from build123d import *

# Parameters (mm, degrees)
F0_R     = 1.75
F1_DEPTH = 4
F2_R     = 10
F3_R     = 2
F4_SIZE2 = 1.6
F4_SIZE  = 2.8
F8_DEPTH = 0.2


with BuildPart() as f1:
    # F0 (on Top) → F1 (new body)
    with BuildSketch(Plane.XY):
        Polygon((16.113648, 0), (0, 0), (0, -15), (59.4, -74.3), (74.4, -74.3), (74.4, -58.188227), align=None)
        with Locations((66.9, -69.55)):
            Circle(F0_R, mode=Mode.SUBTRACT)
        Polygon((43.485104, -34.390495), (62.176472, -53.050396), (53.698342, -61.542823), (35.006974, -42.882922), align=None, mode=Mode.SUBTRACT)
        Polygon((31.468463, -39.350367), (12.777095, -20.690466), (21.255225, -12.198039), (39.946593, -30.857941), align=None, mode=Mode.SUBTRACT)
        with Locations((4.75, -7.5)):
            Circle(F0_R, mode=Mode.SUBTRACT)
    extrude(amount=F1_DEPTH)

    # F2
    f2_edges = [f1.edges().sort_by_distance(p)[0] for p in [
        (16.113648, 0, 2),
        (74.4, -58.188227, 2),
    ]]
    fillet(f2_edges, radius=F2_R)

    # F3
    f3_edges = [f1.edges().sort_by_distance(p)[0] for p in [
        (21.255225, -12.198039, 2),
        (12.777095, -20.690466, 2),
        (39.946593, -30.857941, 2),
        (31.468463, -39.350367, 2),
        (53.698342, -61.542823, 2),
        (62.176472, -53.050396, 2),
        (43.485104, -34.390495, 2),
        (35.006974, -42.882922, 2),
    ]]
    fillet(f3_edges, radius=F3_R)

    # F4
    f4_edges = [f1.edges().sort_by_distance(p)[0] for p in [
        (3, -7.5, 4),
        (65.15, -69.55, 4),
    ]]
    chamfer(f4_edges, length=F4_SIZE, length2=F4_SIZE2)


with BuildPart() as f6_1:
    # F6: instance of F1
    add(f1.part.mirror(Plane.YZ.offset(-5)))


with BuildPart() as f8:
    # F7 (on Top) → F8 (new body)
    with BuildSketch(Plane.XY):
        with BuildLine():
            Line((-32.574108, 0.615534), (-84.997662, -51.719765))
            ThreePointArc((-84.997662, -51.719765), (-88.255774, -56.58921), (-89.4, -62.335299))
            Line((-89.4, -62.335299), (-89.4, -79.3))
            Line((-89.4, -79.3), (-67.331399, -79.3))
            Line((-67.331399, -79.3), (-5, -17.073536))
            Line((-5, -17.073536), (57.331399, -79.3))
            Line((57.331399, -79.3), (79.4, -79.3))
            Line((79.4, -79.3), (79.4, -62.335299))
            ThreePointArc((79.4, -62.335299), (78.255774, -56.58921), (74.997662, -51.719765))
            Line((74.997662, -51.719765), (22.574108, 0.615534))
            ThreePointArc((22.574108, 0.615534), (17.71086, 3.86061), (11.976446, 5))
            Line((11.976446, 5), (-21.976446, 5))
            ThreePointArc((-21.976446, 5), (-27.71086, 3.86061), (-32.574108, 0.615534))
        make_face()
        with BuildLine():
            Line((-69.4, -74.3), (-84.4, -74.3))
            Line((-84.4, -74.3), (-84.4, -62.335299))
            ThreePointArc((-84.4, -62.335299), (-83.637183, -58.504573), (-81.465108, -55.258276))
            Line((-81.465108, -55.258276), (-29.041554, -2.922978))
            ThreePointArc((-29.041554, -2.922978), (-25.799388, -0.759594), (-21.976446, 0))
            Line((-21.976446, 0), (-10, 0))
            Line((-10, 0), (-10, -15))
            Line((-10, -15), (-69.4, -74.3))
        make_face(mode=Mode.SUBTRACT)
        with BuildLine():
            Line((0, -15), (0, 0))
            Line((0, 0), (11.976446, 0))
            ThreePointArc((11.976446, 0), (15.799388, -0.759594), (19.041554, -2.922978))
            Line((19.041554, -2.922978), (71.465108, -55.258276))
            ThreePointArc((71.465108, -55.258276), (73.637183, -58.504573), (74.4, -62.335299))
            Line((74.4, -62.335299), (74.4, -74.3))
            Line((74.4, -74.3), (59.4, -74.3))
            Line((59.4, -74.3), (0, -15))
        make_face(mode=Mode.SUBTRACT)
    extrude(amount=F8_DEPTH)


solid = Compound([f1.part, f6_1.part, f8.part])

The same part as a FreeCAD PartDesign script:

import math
import FreeCAD as App
import Part
import Sketcher
from FreeCAD import Vector
Q = App.Units.Quantity


def edges_at(feature, points):
    """Names of the edges that pass closest to the given points."""
    edges = feature.Shape.Edges
    near = lambda p: min(range(len(edges)), key=lambda i: edges[i].distToShape(Part.Vertex(*p))[0])
    return sorted({f"Edge{near(p) + 1}" for p in points})

doc = App.newDocument("Part")
body = doc.addObject("PartDesign::Body", "Body")

# Sketch on XY plane
sketch1 = doc.addObject("Sketcher::SketchObject", "Sketch")
body.addObject(sketch1)
sketch1.AttachmentSupport = (doc.XY_Plane, [""])
sketch1.MapMode = "FlatFace"
sketch1.addGeometry([
    Part.LineSegment(Vector(16.1, 0, 0), Vector(0, 0, 0)),  # 0
    Part.LineSegment(Vector(0, 0, 0), Vector(0, -15, 0)),  # 1
    Part.LineSegment(Vector(0, -15, 0), Vector(59.4, -74.3, 0)),  # 2
    Part.LineSegment(Vector(59.4, -74.3, 0), Vector(74.4, -74.3, 0)),  # 3
    Part.LineSegment(Vector(74.4, -74.3, 0), Vector(74.4, -58.2, 0)),  # 4
    Part.LineSegment(Vector(74.4, -58.2, 0), Vector(16.1, 0, 0)),  # 5
    Part.Circle(Vector(66.9, -69.5, 0), Vector(0, 0, 1), 1.8),  # 6
    Part.LineSegment(Vector(35, -42.9, 0), Vector(43.5, -34.4, 0)),  # 7
    Part.LineSegment(Vector(43.5, -34.4, 0), Vector(62.2, -53.1, 0)),  # 8
    Part.LineSegment(Vector(62.2, -53.1, 0), Vector(53.7, -61.5, 0)),  # 9
    Part.LineSegment(Vector(53.7, -61.5, 0), Vector(35, -42.9, 0)),  # 10
    Part.LineSegment(Vector(39.9, -30.9, 0), Vector(31.5, -39.4, 0)),  # 11
    Part.LineSegment(Vector(31.5, -39.4, 0), Vector(12.8, -20.7, 0)),  # 12
    Part.LineSegment(Vector(12.8, -20.7, 0), Vector(21.3, -12.2, 0)),  # 13
    Part.LineSegment(Vector(21.3, -12.2, 0), Vector(39.9, -30.9, 0)),  # 14
    Part.Circle(Vector(4.8, -7.5, 0), Vector(0, 0, 1), 1.8),  # 15
], False)
sketch1.addConstraint([
    Sketcher.Constraint("Coincident", 0, 2, 1, 1),
    Sketcher.Constraint("Coincident", 1, 2, 2, 1),
    Sketcher.Constraint("Coincident", 2, 2, 3, 1),
    Sketcher.Constraint("Coincident", 3, 2, 4, 1),
    Sketcher.Constraint("Coincident", 4, 2, 5, 1),
    Sketcher.Constraint("Coincident", 5, 2, 0, 1),
    Sketcher.Constraint("Coincident", 7, 2, 8, 1),
    Sketcher.Constraint("Coincident", 8, 2, 9, 1),
    Sketcher.Constraint("Coincident", 9, 2, 10, 1),
    Sketcher.Constraint("Coincident", 10, 2, 7, 1),
    Sketcher.Constraint("Coincident", 11, 2, 12, 1),
    Sketcher.Constraint("Coincident", 12, 2, 13, 1),
    Sketcher.Constraint("Coincident", 13, 2, 14, 1),
    Sketcher.Constraint("Coincident", 14, 2, 11, 1),
    Sketcher.Constraint("Horizontal", 0),
    Sketcher.Constraint("Vertical", 1),
    Sketcher.Constraint("Horizontal", 3),
    Sketcher.Constraint("Vertical", 4),
    Sketcher.Constraint("Coincident", 0, 2, -1, 1),
    Sketcher.Constraint("Equal", 6, 15),
    Sketcher.Constraint("Parallel", 2, 5),
    Sketcher.Constraint("Perpendicular", 5, 7),
    Sketcher.Constraint("Perpendicular", 7, 8),
    Sketcher.Constraint("Perpendicular", 8, 9),
    Sketcher.Constraint("Perpendicular", 9, 10),
    Sketcher.Constraint("Perpendicular", 10, 11),
    Sketcher.Constraint("Perpendicular", 11, 12),
    Sketcher.Constraint("Perpendicular", 12, 13),
    Sketcher.Constraint("Perpendicular", 13, 14),
    Sketcher.Constraint("Equal", 3, 1),
    Sketcher.Constraint("Equal", 9, 11),
    Sketcher.Constraint("Equal", 10, 12),
    Sketcher.Constraint("Diameter", 6, Q("3.5 mm")),
    Sketcher.Constraint("DistanceX", 3, 1, 3, 2, Q("15 mm")),
    Sketcher.Constraint("Distance", 7, Q("12 mm")),
    Sketcher.Constraint("DistanceX", -1, 1, 6, 3, Q("66.9 mm")),
    Sketcher.Constraint("DistanceY", 15, 3, -1, 1, Q("7.5 mm")),
    Sketcher.Constraint("DistanceX", -1, 1, 2, 2, Q("59.4 mm")),
    Sketcher.Constraint("DistanceY", 2, 2, -1, 1, Q("74.3 mm")),
    Sketcher.Constraint("DistanceY", 6, 3, -1, 1, Q("69.55 mm")),
    Sketcher.Constraint("DistanceX", -1, 1, 15, 3, Q("4.75 mm")),
    Sketcher.Constraint("DistanceX", 0, 2, 0, 1, Q("16.113648 mm")),
    Sketcher.Constraint("DistanceY", 8, 2, 7, 2, Q("18.659901 mm")),
    Sketcher.Constraint("DistanceX", -1, 1, 8, 2, Q("62.176472 mm")),
    Sketcher.Constraint("DistanceY", 13, 2, -1, 1, Q("12.198039 mm")),
    Sketcher.Constraint("DistanceY", 4, 2, 7, 2, Q("23.797732 mm")),
    Sketcher.Constraint("DistanceX", 11, 2, 10, 2, Q("3.538511 mm")),
])
pad1 = doc.addObject("PartDesign::Pad", "Pad")
body.addObject(pad1)
pad1.Profile = sketch1
pad1.Length = 4
doc.recompute()

fillet = doc.addObject("PartDesign::Fillet", "Fillet")
body.addObject(fillet)
fillet.Base = (pad1, edges_at(pad1, [(16.114, 0, 2), (74.4, -58.188, 2)]))
fillet.Radius = 10
doc.recompute()

fillet2 = doc.addObject("PartDesign::Fillet", "Fillet001")
body.addObject(fillet2)
fillet2.Base = (fillet, edges_at(fillet, [
    (21.255, -12.198, 2),
    (12.777, -20.69, 2),
    (39.947, -30.858, 2),
    (31.468, -39.35, 2),
    (53.698, -61.543, 2),
    (62.176, -53.05, 2),
    (43.485, -34.39, 2),
    (35.007, -42.883, 2),
]))
fillet2.Radius = 2
doc.recompute()

chamfer = doc.addObject("PartDesign::Chamfer", "Chamfer")
body.addObject(chamfer)
chamfer.Base = (fillet2, edges_at(fillet2, [(3, -7.5, 4), (65.15, -69.55, 4)]))
chamfer.ChamferType = "Two distances"
chamfer.Size = 2.8
chamfer.Size2 = 1.6
body2 = doc.addObject("PartDesign::Body", "Body001")
doc.recompute()

mirroring = doc.addObject("Part::Mirroring", "Mirroring")
mirroring.Source = body
mirroring.Base = Vector(-5, 0, 0)
mirroring.Normal = Vector(1, 0, 0)
body2.BaseFeature = mirroring
doc.recompute()
body3 = doc.addObject("PartDesign::Body", "Body002")

# Sketch on XY plane
sketch2 = doc.addObject("Sketcher::SketchObject", "Sketch001")
body3.addObject(sketch2)
sketch2.AttachmentSupport = (doc.getObject("XY_Plane002"), [""])
sketch2.MapMode = "FlatFace"
sketch2.addGeometry([
    Part.LineSegment(Vector(-33, 1, 0), Vector(-85, -52, 0)),  # 0
    Part.ArcOfCircle(Part.Circle(Vector(-74, -62, 0), Vector(0, 0, 1), 15), math.radians(135), math.radians(180)),  # 1
    Part.LineSegment(Vector(-89, -62, 0), Vector(-89, -79, 0)),  # 2
    Part.LineSegment(Vector(-89, -79, 0), Vector(-67, -79, 0)),  # 3
    Part.LineSegment(Vector(-67, -79, 0), Vector(-5, -17, 0)),  # 4
    Part.LineSegment(Vector(-5, -17, 0), Vector(57, -79, 0)),  # 5
    Part.LineSegment(Vector(57, -79, 0), Vector(79, -79, 0)),  # 6
    Part.LineSegment(Vector(79, -79, 0), Vector(79, -62, 0)),  # 7
    Part.ArcOfCircle(Part.Circle(Vector(64, -62, 0), Vector(0, 0, 1), 15), math.radians(0), math.radians(45)),  # 8
    Part.LineSegment(Vector(75, -52, 0), Vector(23, 1, 0)),  # 9
    Part.ArcOfCircle(Part.Circle(Vector(12, -10, 0), Vector(0, 0, 1), 15), math.radians(45), math.radians(90)),  # 10
    Part.LineSegment(Vector(12, 5, 0), Vector(-22, 5, 0)),  # 11
    Part.ArcOfCircle(Part.Circle(Vector(-22, -10, 0), Vector(0, 0, 1), 15), math.radians(90), math.radians(135)),  # 12
    Part.LineSegment(Vector(-10, -15, 0), Vector(-69, -74, 0)),  # 13
    Part.LineSegment(Vector(-69, -74, 0), Vector(-84, -74, 0)),  # 14
    Part.LineSegment(Vector(-84, -74, 0), Vector(-84, -62, 0)),  # 15
    Part.ArcOfCircle(Part.Circle(Vector(-74, -62, 0), Vector(0, 0, 1), 10), math.radians(135), math.radians(180)),  # 16
    Part.LineSegment(Vector(-81, -55, 0), Vector(-29, -3, 0)),  # 17
    Part.ArcOfCircle(Part.Circle(Vector(-22, -10, 0), Vector(0, 0, 1), 10), math.radians(90), math.radians(135)),  # 18
    Part.LineSegment(Vector(-22, 0, 0), Vector(-10, 0, 0)),  # 19
    Part.LineSegment(Vector(-10, 0, 0), Vector(-10, -15, 0)),  # 20
    Part.LineSegment(Vector(59, -74, 0), Vector(0, -15, 0)),  # 21
    Part.LineSegment(Vector(0, -15, 0), Vector(0, 0, 0)),  # 22
    Part.LineSegment(Vector(0, 0, 0), Vector(12, 0, 0)),  # 23
    Part.ArcOfCircle(Part.Circle(Vector(12, -10, 0), Vector(0, 0, 1), 10), math.radians(45), math.radians(90)),  # 24
    Part.LineSegment(Vector(19, -3, 0), Vector(71, -55, 0)),  # 25
    Part.ArcOfCircle(Part.Circle(Vector(64, -62, 0), Vector(0, 0, 1), 10), math.radians(0), math.radians(45)),  # 26
    Part.LineSegment(Vector(74, -62, 0), Vector(74, -74, 0)),  # 27
    Part.LineSegment(Vector(74, -74, 0), Vector(59, -74, 0)),  # 28
], False)
sketch2.addConstraint([
    Sketcher.Constraint("Tangent", 0, 2, 1, 1),
    Sketcher.Constraint("Tangent", 1, 2, 2, 1),
    Sketcher.Constraint("Coincident", 2, 2, 3, 1),
    Sketcher.Constraint("Coincident", 3, 2, 4, 1),
    Sketcher.Constraint("Coincident", 4, 2, 5, 1),
    Sketcher.Constraint("Coincident", 5, 2, 6, 1),
    Sketcher.Constraint("Coincident", 6, 2, 7, 1),
    Sketcher.Constraint("Tangent", 7, 2, 8, 1),
    Sketcher.Constraint("Tangent", 8, 2, 9, 1),
    Sketcher.Constraint("Tangent", 9, 2, 10, 1),
    Sketcher.Constraint("Tangent", 10, 2, 11, 1),
    Sketcher.Constraint("Tangent", 11, 2, 12, 1),
    Sketcher.Constraint("Tangent", 12, 2, 0, 1),
    Sketcher.Constraint("Coincident", 13, 2, 14, 1),
    Sketcher.Constraint("Coincident", 14, 2, 15, 1),
    Sketcher.Constraint("Tangent", 15, 2, 16, 2),
    Sketcher.Constraint("Tangent", 16, 1, 17, 1),
    Sketcher.Constraint("Tangent", 17, 2, 18, 2),
    Sketcher.Constraint("Tangent", 18, 1, 19, 1),
    Sketcher.Constraint("Coincident", 19, 2, 20, 1),
    Sketcher.Constraint("Coincident", 20, 2, 13, 1),
    Sketcher.Constraint("Coincident", 21, 2, 22, 1),
    Sketcher.Constraint("Coincident", 22, 2, 23, 1),
    Sketcher.Constraint("Tangent", 23, 2, 24, 2),
    Sketcher.Constraint("Tangent", 24, 1, 25, 1),
    Sketcher.Constraint("Tangent", 25, 2, 26, 2),
    Sketcher.Constraint("Tangent", 26, 1, 27, 1),
    Sketcher.Constraint("Coincident", 27, 2, 28, 1),
    Sketcher.Constraint("Coincident", 28, 2, 21, 1),
    Sketcher.Constraint("Vertical", 2),
    Sketcher.Constraint("Horizontal", 3),
    Sketcher.Constraint("Horizontal", 6),
    Sketcher.Constraint("Vertical", 7),
    Sketcher.Constraint("Horizontal", 11),
    Sketcher.Constraint("Horizontal", 14),
    Sketcher.Constraint("Vertical", 15),
    Sketcher.Constraint("Horizontal", 19),
    Sketcher.Constraint("Vertical", 20),
    Sketcher.Constraint("Vertical", 22),
    Sketcher.Constraint("Horizontal", 23),
    Sketcher.Constraint("Vertical", 27),
    Sketcher.Constraint("Horizontal", 28),
    Sketcher.Constraint("Coincident", 22, 2, -1, 1),
    Sketcher.Constraint("Coincident", 16, 3, 1, 3),
    Sketcher.Constraint("Coincident", 26, 3, 8, 3),
    Sketcher.Constraint("Equal", 1, 8),
    Sketcher.Constraint("Equal", 8, 10),
    Sketcher.Constraint("Equal", 10, 12),
    Sketcher.Constraint("Equal", 18, 24),
    Sketcher.Constraint("Equal", 16, 26),
    Sketcher.Constraint("PointOnObject", 18, 1, -1),
    Sketcher.Constraint("Parallel", 0, 4),
    Sketcher.Constraint("Parallel", 5, 9),
    Sketcher.Constraint("Parallel", 4, 13),
    Sketcher.Constraint("Parallel", 13, 17),
    Sketcher.Constraint("Parallel", 9, 21),
    Sketcher.Constraint("Parallel", 21, 25),
    Sketcher.Constraint("Horizontal", 1, 3, 8, 3),
    Sketcher.Constraint("Horizontal", 3, 2, 5, 2),
    Sketcher.Constraint("Horizontal", 0, 2, 8, 2),
    Sketcher.Constraint("Horizontal", 20, 2, 21, 2),
    Sketcher.Constraint("Horizontal", 14, 2, 27, 2),
    Sketcher.Constraint("Vertical", 11, 2, 18, 1),
    Sketcher.Constraint("Equal", 3, 6),
    Sketcher.Constraint("Equal", 19, 23),
    Sketcher.Constraint("Equal", 28, 20),
    Sketcher.Constraint("Equal", 9, 17),
    Sketcher.Constraint("DistanceX", 14, 2, 14, 1, Q("15 mm")),
    Sketcher.Constraint("DistanceX", 4, 2, -1, 1, Q("5 mm")),
    Sketcher.Constraint("DistanceY", -1, 1, 10, 2, Q("5 mm")),
    Sketcher.Constraint("DistanceY", 3, 2, 13, 2, Q("5 mm")),
    Sketcher.Constraint("DistanceX", 1, 2, -1, 1, Q("89.4 mm")),
    Sketcher.Constraint("DistanceY", 2, 2, -1, 1, Q("79.3 mm")),
    Sketcher.Constraint("DistanceX", 3, 1, 3, 2, Q("22.068601 mm")),
    Sketcher.Constraint("DistanceY", 2, 2, 2, 1, Q("16.964701 mm")),
    Sketcher.Constraint("Radius", 1, Q("14.999996 mm")),
])
pad2 = doc.addObject("PartDesign::Pad", "Pad001")
body3.addObject(pad2)
pad2.Profile = sketch2
pad2.Length = 0.2
mirroring.Visibility = False

doc.recompute()
